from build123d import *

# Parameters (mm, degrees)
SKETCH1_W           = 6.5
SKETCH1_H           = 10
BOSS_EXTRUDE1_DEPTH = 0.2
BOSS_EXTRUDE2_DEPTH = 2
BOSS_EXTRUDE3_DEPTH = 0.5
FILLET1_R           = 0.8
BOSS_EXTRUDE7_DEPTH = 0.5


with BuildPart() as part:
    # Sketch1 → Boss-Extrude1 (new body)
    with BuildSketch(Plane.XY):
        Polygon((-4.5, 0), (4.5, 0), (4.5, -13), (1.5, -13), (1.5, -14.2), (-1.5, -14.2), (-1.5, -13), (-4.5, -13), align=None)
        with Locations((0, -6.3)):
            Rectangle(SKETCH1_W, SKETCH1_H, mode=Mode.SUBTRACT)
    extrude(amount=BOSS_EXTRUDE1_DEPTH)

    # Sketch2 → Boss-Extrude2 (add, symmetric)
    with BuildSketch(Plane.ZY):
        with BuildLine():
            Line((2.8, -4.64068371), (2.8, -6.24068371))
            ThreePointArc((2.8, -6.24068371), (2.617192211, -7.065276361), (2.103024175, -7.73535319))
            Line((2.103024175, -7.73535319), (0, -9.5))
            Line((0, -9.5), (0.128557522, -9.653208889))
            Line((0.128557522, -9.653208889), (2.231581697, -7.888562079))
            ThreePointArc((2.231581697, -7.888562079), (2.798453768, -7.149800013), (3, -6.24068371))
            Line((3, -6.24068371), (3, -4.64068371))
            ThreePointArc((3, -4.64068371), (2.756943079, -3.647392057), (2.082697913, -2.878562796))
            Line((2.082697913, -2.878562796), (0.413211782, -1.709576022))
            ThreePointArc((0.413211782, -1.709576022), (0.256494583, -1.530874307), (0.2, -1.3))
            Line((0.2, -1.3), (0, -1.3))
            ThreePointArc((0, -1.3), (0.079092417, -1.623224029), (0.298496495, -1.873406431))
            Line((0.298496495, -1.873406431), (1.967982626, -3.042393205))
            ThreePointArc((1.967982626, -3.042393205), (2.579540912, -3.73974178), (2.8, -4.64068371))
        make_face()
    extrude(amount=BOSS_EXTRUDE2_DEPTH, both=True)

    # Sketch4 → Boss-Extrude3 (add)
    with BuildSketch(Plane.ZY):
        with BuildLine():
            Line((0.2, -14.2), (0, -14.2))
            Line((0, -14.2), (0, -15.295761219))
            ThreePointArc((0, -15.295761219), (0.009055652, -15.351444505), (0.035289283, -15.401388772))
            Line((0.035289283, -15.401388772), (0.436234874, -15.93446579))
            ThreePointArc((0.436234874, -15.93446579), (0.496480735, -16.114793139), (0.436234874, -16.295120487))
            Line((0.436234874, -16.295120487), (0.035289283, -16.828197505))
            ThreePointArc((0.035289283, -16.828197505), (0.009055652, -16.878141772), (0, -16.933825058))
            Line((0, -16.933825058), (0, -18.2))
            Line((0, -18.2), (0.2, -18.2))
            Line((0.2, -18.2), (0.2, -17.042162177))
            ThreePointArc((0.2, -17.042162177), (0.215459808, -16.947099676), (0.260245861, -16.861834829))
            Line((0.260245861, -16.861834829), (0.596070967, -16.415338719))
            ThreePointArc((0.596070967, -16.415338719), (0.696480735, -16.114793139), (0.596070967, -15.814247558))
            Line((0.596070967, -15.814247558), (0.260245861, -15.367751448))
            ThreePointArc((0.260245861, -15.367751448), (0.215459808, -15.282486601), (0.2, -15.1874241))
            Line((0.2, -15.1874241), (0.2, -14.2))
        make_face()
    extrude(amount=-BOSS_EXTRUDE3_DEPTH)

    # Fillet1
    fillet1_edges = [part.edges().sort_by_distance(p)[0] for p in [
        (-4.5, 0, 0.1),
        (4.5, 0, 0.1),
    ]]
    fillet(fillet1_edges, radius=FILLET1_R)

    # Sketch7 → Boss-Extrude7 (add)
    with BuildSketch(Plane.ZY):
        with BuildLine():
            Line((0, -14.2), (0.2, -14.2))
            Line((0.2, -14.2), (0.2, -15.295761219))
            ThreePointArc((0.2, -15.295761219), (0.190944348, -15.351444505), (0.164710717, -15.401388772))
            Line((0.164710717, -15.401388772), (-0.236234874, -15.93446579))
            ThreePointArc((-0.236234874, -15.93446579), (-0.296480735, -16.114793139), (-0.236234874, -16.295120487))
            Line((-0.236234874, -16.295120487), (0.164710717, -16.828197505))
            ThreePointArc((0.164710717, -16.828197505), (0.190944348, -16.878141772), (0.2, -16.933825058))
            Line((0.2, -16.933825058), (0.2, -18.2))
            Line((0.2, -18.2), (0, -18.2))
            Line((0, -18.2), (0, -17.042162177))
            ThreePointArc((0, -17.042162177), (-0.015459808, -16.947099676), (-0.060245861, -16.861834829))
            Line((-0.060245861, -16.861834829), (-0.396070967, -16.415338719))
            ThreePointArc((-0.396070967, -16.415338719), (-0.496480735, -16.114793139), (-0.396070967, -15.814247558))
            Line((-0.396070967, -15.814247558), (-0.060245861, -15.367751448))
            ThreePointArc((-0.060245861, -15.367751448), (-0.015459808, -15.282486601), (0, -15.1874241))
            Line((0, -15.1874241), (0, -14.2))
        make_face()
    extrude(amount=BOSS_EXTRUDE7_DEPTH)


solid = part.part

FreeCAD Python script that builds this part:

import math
import FreeCAD as App
import Part
import Sketcher

V = App.Vector
Q = App.Units.Quantity


def edges_at(feature, points):
    """Names of the edges that pass closest to the given points."""
    edges = feature.Shape.Edges
    near = lambda p: min(range(len(edges)), key=lambda i: edges[i].distToShape(Part.Vertex(*p))[0])
    return sorted({f"Edge{near(p) + 1}" for p in points})

doc = App.newDocument("Part")
params = doc.addObject("Spreadsheet::Sheet", "Params")
for row, (alias, value) in enumerate([
    ("sketch1_width", "9 mm"),
    ("sketch1_height", "13 mm"),
    ("sketch1_height2", "10 mm"),
    ("sketch1_width2", "6.5 mm"),
    ("sketch1_height3", "1.2 mm"),
    ("pad1_length", "0.2 mm"),
    ("sketch2_radius", "0.5 mm"),
    ("sketch2_radius2", "0.7 mm"),
    ("sketch2_width", "1.6 mm"),
    ("pad2_length", "4 mm"),
    ("sketch3_radius", "0.3 mm"),
    ("sketch3_radius2", "0.5 mm"),
    ("sketch3_height", "0.2 mm"),
    ("pad3_length", "0.5 mm"),
    ("fillet_radius", "0.8 mm"),
    ("sketch4_radius", "0.3 mm"),
    ("sketch4_radius2", "0.5 mm"),
    ("sketch4_height", "0.2 mm"),
    ("pad4_length", "0.5 mm"),
], start=1):
    params.set(f"A{row}", alias)
    params.set(f"B{row}", "=" + value)
    params.setAlias(f"B{row}", alias)

body = doc.addObject("PartDesign::Body", "Body")

sketch1 = body.newObject("Sketcher::SketchObject", "Sketch")
sketch1.AttachmentSupport = (doc.getObject("XY_Plane"), [""])
sketch1.MapMode = "FlatFace"
sketch1.addGeometry(Part.LineSegment(V(4.5, 0, 0), V(-4.5, 0, 0)), False)
sketch1.addGeometry(Part.LineSegment(V(-4.5, 0, 0), V(-4.5, -13, 0)), False)
sketch1.addGeometry(Part.LineSegment(V(-4.5, -13, 0), V(-1.5, -13, 0)), False)
sketch1.addGeometry(Part.LineSegment(V(-1.5, -13, 0), V(-1.5, -14.2, 0)), False)
sketch1.addGeometry(Part.LineSegment(V(-1.5, -14.2, 0), V(1.5, -14.2, 0)), False)
sketch1.addGeometry(Part.LineSegment(V(1.5, -14.2, 0), V(1.5, -13, 0)), False)
sketch1.addGeometry(Part.LineSegment(V(1.5, -13, 0), V(4.5, -13, 0)), False)
sketch1.addGeometry(Part.LineSegment(V(4.5, -13, 0), V(4.5, 0, 0)), False)
sketch1.addGeometry(Part.LineSegment(V(-3.25, -11.3, 0), V(-3.25, -1.3, 0)), False)
sketch1.addGeometry(Part.LineSegment(V(-3.25, -1.3, 0), V(3.25, -1.3, 0)), False)
sketch1.addGeometry(Part.LineSegment(V(3.25, -1.3, 0), V(3.25, -11.3, 0)), False)
sketch1.addGeometry(Part.LineSegment(V(3.25, -11.3, 0), V(-3.25, -11.3, 0)), False)
sketch1.addConstraint(Sketcher.Constraint("Coincident", 0, 2, 1, 1))
sketch1.addConstraint(Sketcher.Constraint("Coincident", 1, 2, 2, 1))
sketch1.addConstraint(Sketcher.Constraint("Coincident", 2, 2, 3, 1))
sketch1.addConstraint(Sketcher.Constraint("Coincident", 3, 2, 4, 1))
sketch1.addConstraint(Sketcher.Constraint("Coincident", 4, 2, 5, 1))
sketch1.addConstraint(Sketcher.Constraint("Coincident", 5, 2, 6, 1))
sketch1.addConstraint(Sketcher.Constraint("Coincident", 6, 2, 7, 1))
sketch1.addConstraint(Sketcher.Constraint("Coincident", 7, 2, 0, 1))
sketch1.addConstraint(Sketcher.Constraint("Coincident", 8, 2, 9, 1))
sketch1.addConstraint(Sketcher.Constraint("Coincident", 9, 2, 10, 1))
sketch1.addConstraint(Sketcher.Constraint("Coincident", 10, 2, 11, 1))
sketch1.addConstraint(Sketcher.Constraint("Coincident", 11, 2, 8, 1))
sketch1.addConstraint(Sketcher.Constraint("Horizontal", 0))
sketch1.addConstraint(Sketcher.Constraint("Vertical", 1))
sketch1.addConstraint(Sketcher.Constraint("Horizontal", 2))
sketch1.addConstraint(Sketcher.Constraint("Vertical", 3))
sketch1.addConstraint(Sketcher.Constraint("Horizontal", 4))
sketch1.addConstraint(Sketcher.Constraint("Vertical", 5))
sketch1.addConstraint(Sketcher.Constraint("Horizontal", 6))
sketch1.addConstraint(Sketcher.Constraint("Vertical", 7))
sketch1.addConstraint(Sketcher.Constraint("Vertical", 8))
sketch1.addConstraint(Sketcher.Constraint("Horizontal", 9))
sketch1.addConstraint(Sketcher.Constraint("Vertical", 10))
sketch1.addConstraint(Sketcher.Constraint("Horizontal", 11))
sketch1.addConstraint(Sketcher.Constraint("Symmetric", 0, 2, 7, 2, -1, 1))
sketch1.addConstraint(Sketcher.Constraint("Symmetric", 2, 2, 5, 2, -2))
sketch1.addConstraint(Sketcher.Constraint("Equal", 2, 4))
sketch1.addConstraint(Sketcher.Constraint("DistanceX", 0, 2, 0, 1, 9.0))
sketch1.addConstraint(Sketcher.Constraint("DistanceY", 1, 2, 1, 1, 13.0))
sketch1.addConstraint(Sketcher.Constraint("DistanceY", 8, 1, 8, 2, 10.0))
sketch1.addConstraint(Sketcher.Constraint("DistanceX", 9, 1, 9, 2, 6.5))
sketch1.addConstraint(Sketcher.Constraint("DistanceY", 3, 2, 3, 1, 1.2))
sketch1.addConstraint(Sketcher.Constraint("DistanceY", 8, 2, -1, 1, 1.3))
sketch1.addConstraint(Sketcher.Constraint("DistanceX", 8, 2, -1, 1, 3.25))
sketch1.setExpression("Constraints[27]", "Params.sketch1_width")
sketch1.setExpression("Constraints[28]", "Params.sketch1_height")
sketch1.setExpression("Constraints[29]", "Params.sketch1_height2")
sketch1.setExpression("Constraints[30]", "Params.sketch1_width2")
sketch1.setExpression("Constraints[31]", "Params.sketch1_height3")
pad1 = body.newObject("PartDesign::Pad", "Pad")
pad1.Profile = sketch1
pad1.setExpression("Length", "Params.pad1_length")

sketch2 = body.newObject("Sketcher::SketchObject", "Sketch001")
sketch2.AttachmentSupport = (doc.getObject("YZ_Plane"), [""])
sketch2.MapMode = "FlatFace"
sketch2.addGeometry(Part.LineSegment(V(-4.640684, 2.8, 0), V(-6.240684, 2.8, 0)), False)
sketch2.addGeometry(Part.ArcOfCircle(Part.Circle(V(-6.240684, 0.848848, 0), V(0, 0, 1), 1.951152), math.radians(90), math.radians(140)), False)
sketch2.addGeometry(Part.LineSegment(V(-7.735353, 2.103024, 0), V(-9.5, 0, 0)), False)
sketch2.addGeometry(Part.LineSegment(V(-9.5, 0, 0), V(-9.653209, 0.128558, 0)), False)
sketch2.addGeometry(Part.LineSegment(V(-9.653209, 0.128558, 0), V(-7.888562, 2.231582, 0)), False)
sketch2.addGeometry(Part.ArcOfCircle(Part.Circle(V(-6.240684, 0.848848, 0), V(0, 0, 1), 2.151152), math.radians(90), math.radians(140)), False)
sketch2.addGeometry(Part.LineSegment(V(-6.240684, 3, 0), V(-4.640684, 3, 0)), False)
sketch2.addGeometry(Part.ArcOfCircle(Part.Circle(V(-4.640684, 0.848848, 0), V(0, 0, 1), 2.151152), math.radians(35), math.radians(90)), False)
sketch2.addGeometry(Part.LineSegment(V(-2.878563, 2.082698, 0), V(-1.709576, 0.413212, 0)), False)
sketch2.addGeometry(Part.ArcOfCircle(Part.Circle(V(-1.3, 0.7, 0), V(0, 0, 1), 0.5), math.radians(-145), math.radians(-90)), False)
sketch2.addGeometry(Part.LineSegment(V(-1.3, 0.2, 0), V(-1.3, 0, 0)), False)
sketch2.addGeometry(Part.ArcOfCircle(Part.Circle(V(-1.3, 0.7, 0), V(0, 0, 1), 0.7), math.radians(-145), math.radians(-90)), False)
sketch2.addGeometry(Part.LineSegment(V(-1.873406, 0.298496, 0), V(-3.042393, 1.967983, 0)), False)
sketch2.addGeometry(Part.ArcOfCircle(Part.Circle(V(-4.640684, 0.848848, 0), V(0, 0, 1), 1.951152), math.radians(35), math.radians(90)), False)
sketch2.addConstraint(Sketcher.Constraint("Tangent", 0, 2, 1, 1))
sketch2.addConstraint(Sketcher.Constraint("Tangent", 1, 2, 2, 1))
sketch2.addConstraint(Sketcher.Constraint("Coincident", 2, 2, 3, 1))
sketch2.addConstraint(Sketcher.Constraint("Coincident", 3, 2, 4, 1))
sketch2.addConstraint(Sketcher.Constraint("Tangent", 4, 2, 5, 2))
sketch2.addConstraint(Sketcher.Constraint("Tangent", 5, 1, 6, 1))
sketch2.addConstraint(Sketcher.Constraint("Tangent", 6, 2, 7, 2))
sketch2.addConstraint(Sketcher.Constraint("Tangent", 7, 1, 8, 1))
sketch2.addConstraint(Sketcher.Constraint("Tangent", 8, 2, 9, 1))
sketch2.addConstraint(Sketcher.Constraint("Coincident", 9, 2, 10, 1))
sketch2.addConstraint(Sketcher.Constraint("Coincident", 10, 2, 11, 2))
sketch2.addConstraint(Sketcher.Constraint("Tangent", 11, 1, 12, 1))
sketch2.addConstraint(Sketcher.Constraint("Tangent", 12, 2, 13, 1))
sketch2.addConstraint(Sketcher.Constraint("Tangent", 13, 2, 0, 1))
sketch2.addConstraint(Sketcher.Constraint("Horizontal", 0))
sketch2.addConstraint(Sketcher.Constraint("Horizontal", 6))
sketch2.addConstraint(Sketcher.Constraint("Vertical", 10))
sketch2.addConstraint(Sketcher.Constraint("Coincident", 5, 3, 1, 3))
sketch2.addConstraint(Sketcher.Constraint("Coincident", 11, 3, 9, 3))
sketch2.addConstraint(Sketcher.Constraint("Coincident", 13, 3, 7, 3))
sketch2.addConstraint(Sketcher.Constraint("Equal", 5, 7))
sketch2.addConstraint(Sketcher.Constraint("PointOnObject", 2, 2, -1))
sketch2.addConstraint(Sketcher.Constraint("PointOnObject", 10, 2, -1))
sketch2.addConstraint(Sketcher.Constraint("Perpendicular", 2, 3))
sketch2.addConstraint(Sketcher.Constraint("Perpendicular", 3, 4))
sketch2.addConstraint(Sketcher.Constraint("Parallel", 8, 12))
sketch2.addConstraint(Sketcher.Constraint("Vertical", 11, 3, 9, 2))
sketch2.addConstraint(Sketcher.Constraint("Radius", 9, 0.5))
sketch2.addConstraint(Sketcher.Constraint("Radius", 11, 0.7))
sketch2.addConstraint(Sketcher.Constraint("Angle", 2, Q("-130 deg")))
sketch2.addConstraint(Sketcher.Constraint("Angle", 8, Q("-55 deg")))
sketch2.addConstraint(Sketcher.Constraint("DistanceX", 0, 2, 0, 1, 1.6))
sketch2.addConstraint(Sketcher.Constraint("DistanceY", -1, 1, 5, 1, 3.0))
sketch2.addConstraint(Sketcher.Constraint("DistanceX", 9, 3, -1, 1, 1.3))
sketch2.addConstraint(Sketcher.Constraint("DistanceX", 2, 2, -1, 1, 9.5))
sketch2.setExpression("Constraints[27]", "Params.sketch2_radius")
sketch2.setExpression("Constraints[28]", "Params.sketch2_radius2")
sketch2.setExpression("Constraints[31]", "Params.sketch2_width")
pad2 = body.newObject("PartDesign::Pad", "Pad001")
pad2.Profile = sketch2
pad2.setExpression("Length", "Params.pad2_length")
pad2.Midplane = True

sketch3 = body.newObject("Sketcher::SketchObject", "Sketch002")
sketch3.AttachmentSupport = (doc.getObject("YZ_Plane"), [""])
sketch3.MapMode = "FlatFace"
sketch3.addGeometry(Part.LineSegment(V(-14.2, 0.2, 0), V(-14.2, 0, 0)), False)
sketch3.addGeometry(Part.LineSegment(V(-14.2, 0, 0), V(-15.295761, 0, 0)), False)
sketch3.addGeometry(Part.ArcOfCircle(Part.Circle(V(-15.295761, 0.175726, 0), V(0, 0, 1), 0.175726), math.radians(-126.948086), math.radians(-90)), False)
sketch3.addGeometry(Part.LineSegment(V(-15.401389, 0.035289, 0), V(-15.934466, 0.436235, 0)), False)
sketch3.addGeometry(Part.ArcOfCircle(Part.Circle(V(-16.114793, 0.196481, 0), V(0, 0, 1), 0.3), math.radians(53.051913), math.radians(126.948087)), False)
sketch3.addGeometry(Part.LineSegment(V(-16.29512, 0.436235, 0), V(-16.828198, 0.035289, 0)), False)
sketch3.addGeometry(Part.ArcOfCircle(Part.Circle(V(-16.933825, 0.175726, 0), V(0, 0, 1), 0.175726), math.radians(-90), math.radians(-53.051914)), False)
sketch3.addGeometry(Part.LineSegment(V(-16.933825, 0, 0), V(-18.2, 0, 0)), False)
sketch3.addGeometry(Part.LineSegment(V(-18.2, 0, 0), V(-18.2, 0.2, 0)), False)
sketch3.addGeometry(Part.LineSegment(V(-18.2, 0.2, 0), V(-17.042162, 0.2, 0)), False)
sketch3.addGeometry(Part.ArcOfCircle(Part.Circle(V(-17.042162, 0.5, 0), V(0, 0, 1), 0.3), math.radians(-90), math.radians(-53.051913)), False)
sketch3.addGeometry(Part.LineSegment(V(-16.861835, 0.260246, 0), V(-16.415339, 0.596071, 0)), False)
sketch3.addGeometry(Part.ArcOfCircle(Part.Circle(V(-16.114793, 0.196481, 0), V(0, 0, 1), 0.5), math.radians(53.051913), math.radians(126.948087)), False)
sketch3.addGeometry(Part.LineSegment(V(-15.814248, 0.596071, 0), V(-15.367751, 0.260246, 0)), False)
sketch3.addGeometry(Part.ArcOfCircle(Part.Circle(V(-15.187424, 0.5, 0), V(0, 0, 1), 0.3), math.radians(-126.948087), math.radians(-90)), False)
sketch3.addGeometry(Part.LineSegment(V(-15.187424, 0.2, 0), V(-14.2, 0.2, 0)), False)
sketch3.addConstraint(Sketcher.Constraint("Coincident", 0, 2, 1, 1))
sketch3.addConstraint(Sketcher.Constraint("Tangent", 1, 2, 2, 2))
sketch3.addConstraint(Sketcher.Constraint("Tangent", 2, 1, 3, 1))
sketch3.addConstraint(Sketcher.Constraint("Tangent", 3, 2, 4, 1))
sketch3.addConstraint(Sketcher.Constraint("Tangent", 4, 2, 5, 1))
sketch3.addConstraint(Sketcher.Constraint("Tangent", 5, 2, 6, 2))
sketch3.addConstraint(Sketcher.Constraint("Tangent", 6, 1, 7, 1))
sketch3.addConstraint(Sketcher.Constraint("Coincident", 7, 2, 8, 1))
sketch3.addConstraint(Sketcher.Constraint("Coincident", 8, 2, 9, 1))
sketch3.addConstraint(Sketcher.Constraint("Tangent", 9, 2, 10, 1))
sketch3.addConstraint(Sketcher.Constraint("Tangent", 10, 2, 11, 1))
sketch3.addConstraint(Sketcher.Constraint("Tangent", 11, 2, 12, 2))
sketch3.addConstraint(Sketcher.Constraint("Tangent", 12, 1, 13, 1))
sketch3.addConstraint(Sketcher.Constraint("Tangent", 13, 2, 14, 1))
sketch3.addConstraint(Sketcher.Constraint("Tangent", 14, 2, 15, 1))
sketch3.addConstraint(Sketcher.Constraint("Coincident", 15, 2, 0, 1))
sketch3.addConstraint(Sketcher.Constraint("Vertical", 0))
sketch3.addConstraint(Sketcher.Constraint("Horizontal", 1))
sketch3.addConstraint(Sketcher.Constraint("Horizontal", 7))
sketch3.addConstraint(Sketcher.Constraint("Vertical", 8))
sketch3.addConstraint(Sketcher.Constraint("Horizontal", 9))
sketch3.addConstraint(Sketcher.Constraint("Horizontal", 15))
sketch3.addConstraint(Sketcher.Constraint("Coincident", 12, 3, 4, 3))
sketch3.addConstraint(Sketcher.Constraint("Equal", 2, 6))
sketch3.addConstraint(Sketcher.Constraint("Equal", 4, 10))
sketch3.addConstraint(Sketcher.Constraint("Equal", 10, 14))
sketch3.addConstraint(Sketcher.Constraint("PointOnObject", 0, 2, -1))
sketch3.addConstraint(Sketcher.Constraint("PointOnObject", 6, 1, -1))
sketch3.addConstraint(Sketcher.Constraint("Parallel", 5, 11))
sketch3.addConstraint(Sketcher.Constraint("Parallel", 3, 13))
sketch3.addConstraint(Sketcher.Constraint("Horizontal", 10, 3, 14, 3))
sketch3.addConstraint(Sketcher.Constraint("Horizontal", 3, 2, 4, 2))
sketch3.addConstraint(Sketcher.Constraint("Radius", 4, 0.3))
sketch3.addConstraint(Sketcher.Constraint("Radius", 12, 0.5))
sketch3.addConstraint(Sketcher.Constraint("DistanceY", 0, 2, 0, 1, 0.2))
sketch3.addConstraint(Sketcher.Constraint("DistanceX", 0, 2, -1, 1, 14.2))
sketch3.addConstraint(Sketcher.Constraint("DistanceX", 7, 2, -1, 1, 18.2))
sketch3.addConstraint(Sketcher.Constraint("Radius", 2, 0.175726))
sketch3.addConstraint(Sketcher.Constraint("DistanceX", 1, 2, 1, 1, 1.095761))
sketch3.addConstraint(Sketcher.Constraint("DistanceX", 10, 3, 2, 3, 1.746401))
sketch3.addConstraint(Sketcher.Constraint("Distance", 3, 0.66703))
sketch3.setExpression("Constraints[32]", "Params.sketch3_radius")
sketch3.setExpression("Constraints[33]", "Params.sketch3_radius2")
sketch3.setExpression("Constraints[34]", "Params.sketch3_height")
pad3 = body.newObject("PartDesign::Pad", "Pad002")
pad3.Profile = sketch3
pad3.setExpression("Length", "Params.pad3_length")
doc.recompute()

fillet = body.newObject("PartDesign::Fillet", "Fillet")
fillet.Base = (pad3, edges_at(pad3, [(-4.5, 0, 0.1), (4.5, 0, 0.1)]))
fillet.setExpression("Radius", "Params.fillet_radius")

sketch4 = body.newObject("Sketcher::SketchObject", "Sketch003")
sketch4.AttachmentSupport = (doc.getObject("YZ_Plane"), [""])
sketch4.MapMode = "FlatFace"
sketch4.addGeometry(Part.LineSegment(V(-14.2, 0.2, 0), V(-14.2, 0, 0)), False)
sketch4.addGeometry(Part.LineSegment(V(-14.2, 0, 0), V(-15.187424, 0, 0)), False)
sketch4.addGeometry(Part.ArcOfCircle(Part.Circle(V(-15.187424, -0.3, 0), V(0, 0, 1), 0.3), math.radians(90), math.radians(126.948087)), False)
sketch4.addGeometry(Part.LineSegment(V(-15.367751, -0.060246, 0), V(-15.814248, -0.396071, 0)), False)
sketch4.addGeometry(Part.ArcOfCircle(Part.Circle(V(-16.114793, 0.003519, 0), V(0, 0, 1), 0.5), math.radians(-126.948087), math.radians(-53.051913)), False)
sketch4.addGeometry(Part.LineSegment(V(-16.415339, -0.396071, 0), V(-16.861835, -0.060246, 0)), False)
sketch4.addGeometry(Part.ArcOfCircle(Part.Circle(V(-17.042162, -0.3, 0), V(0, 0, 1), 0.3), math.radians(53.051913), math.radians(90)), False)
sketch4.addGeometry(Part.LineSegment(V(-17.042162, 0, 0), V(-18.2, 0, 0)), False)
sketch4.addGeometry(Part.LineSegment(V(-18.2, 0, 0), V(-18.2, 0.2, 0)), False)
sketch4.addGeometry(Part.LineSegment(V(-18.2, 0.2, 0), V(-16.933825, 0.2, 0)), False)
sketch4.addGeometry(Part.ArcOfCircle(Part.Circle(V(-16.933825, 0.024274, 0), V(0, 0, 1), 0.175726), math.radians(53.051914), math.radians(90)), False)
sketch4.addGeometry(Part.LineSegment(V(-16.828198, 0.164711, 0), V(-16.29512, -0.236235, 0)), False)
sketch4.addGeometry(Part.ArcOfCircle(Part.Circle(V(-16.114793, 0.003519, 0), V(0, 0, 1), 0.3), math.radians(-126.948087), math.radians(-53.051913)), False)
sketch4.addGeometry(Part.LineSegment(V(-15.934466, -0.236235, 0), V(-15.401389, 0.164711, 0)), False)
sketch4.addGeometry(Part.ArcOfCircle(Part.Circle(V(-15.295761, 0.024274, 0), V(0, 0, 1), 0.175726), math.radians(90), math.radians(126.948086)), False)
sketch4.addGeometry(Part.LineSegment(V(-15.295761, 0.2, 0), V(-14.2, 0.2, 0)), False)
sketch4.addConstraint(Sketcher.Constraint("Coincident", 0, 2, 1, 1))
sketch4.addConstraint(Sketcher.Constraint("Tangent", 1, 2, 2, 1))
sketch4.addConstraint(Sketcher.Constraint("Tangent", 2, 2, 3, 1))
sketch4.addConstraint(Sketcher.Constraint("Tangent", 3, 2, 4, 2))
sketch4.addConstraint(Sketcher.Constraint("Tangent", 4, 1, 5, 1))
sketch4.addConstraint(Sketcher.Constraint("Tangent", 5, 2, 6, 1))
sketch4.addConstraint(Sketcher.Constraint("Tangent", 6, 2, 7, 1))
sketch4.addConstraint(Sketcher.Constraint("Coincident", 7, 2, 8, 1))
sketch4.addConstraint(Sketcher.Constraint("Coincident", 8, 2, 9, 1))
sketch4.addConstraint(Sketcher.Constraint("Tangent", 9, 2, 10, 2))
sketch4.addConstraint(Sketcher.Constraint("Tangent", 10, 1, 11, 1))
sketch4.addConstraint(Sketcher.Constraint("Tangent", 11, 2, 12, 1))
sketch4.addConstraint(Sketcher.Constraint("Tangent", 12, 2, 13, 1))
sketch4.addConstraint(Sketcher.Constraint("Tangent", 13, 2, 14, 2))
sketch4.addConstraint(Sketcher.Constraint("Tangent", 14, 1, 15, 1))
sketch4.addConstraint(Sketcher.Constraint("Coincident", 15, 2, 0, 1))
sketch4.addConstraint(Sketcher.Constraint("Vertical", 0))
sketch4.addConstraint(Sketcher.Constraint("Horizontal", 1))
sketch4.addConstraint(Sketcher.Constraint("Horizontal", 7))
sketch4.addConstraint(Sketcher.Constraint("Vertical", 8))
sketch4.addConstraint(Sketcher.Constraint("Horizontal", 9))
sketch4.addConstraint(Sketcher.Constraint("Horizontal", 15))
sketch4.addConstraint(Sketcher.Constraint("Coincident", 12, 3, 4, 3))
sketch4.addConstraint(Sketcher.Constraint("Equal", 2, 6))
sketch4.addConstraint(Sketcher.Constraint("Equal", 6, 12))
sketch4.addConstraint(Sketcher.Constraint("Equal", 10, 14))
sketch4.addConstraint(Sketcher.Constraint("PointOnObject", 0, 2, -1))
sketch4.addConstraint(Sketcher.Constraint("PointOnObject", 6, 2, -1))
sketch4.addConstraint(Sketcher.Constraint("Parallel", 5, 11))
sketch4.addConstraint(Sketcher.Constraint("Parallel", 3, 13))
sketch4.addConstraint(Sketcher.Constraint("Horizontal", 10, 3, 14, 3))
sketch4.addConstraint(Sketcher.Constraint("Horizontal", 3, 2, 4, 1))
sketch4.addConstraint(Sketcher.Constraint("Radius", 2, 0.3))
sketch4.addConstraint(Sketcher.Constraint("Radius", 4, 0.5))
sketch4.addConstraint(Sketcher.Constraint("DistanceY", 0, 2, 0, 1, 0.2))
sketch4.addConstraint(Sketcher.Constraint("DistanceX", 0, 2, -1, 1, 14.2))
sketch4.addConstraint(Sketcher.Constraint("DistanceX", 7, 2, -1, 1, 18.2))
sketch4.addConstraint(Sketcher.Constraint("Radius", 10, 0.175726))
sketch4.addConstraint(Sketcher.Constraint("DistanceX", 15, 1, 15, 2, 1.095761))
sketch4.addConstraint(Sketcher.Constraint("DistanceX", 10, 3, 2, 3, 1.746401))
sketch4.addConstraint(Sketcher.Constraint("Distance", 11, 0.66703))
sketch4.setExpression("Constraints[32]", "Params.sketch4_radius")
sketch4.setExpression("Constraints[33]", "Params.sketch4_radius2")
sketch4.setExpression("Constraints[34]", "Params.sketch4_height")
pad4 = body.newObject("PartDesign::Pad", "Pad003")
pad4.Profile = sketch4
pad4.setExpression("Length", "Params.pad4_length")
pad4.Reversed = True

doc.recompute()
